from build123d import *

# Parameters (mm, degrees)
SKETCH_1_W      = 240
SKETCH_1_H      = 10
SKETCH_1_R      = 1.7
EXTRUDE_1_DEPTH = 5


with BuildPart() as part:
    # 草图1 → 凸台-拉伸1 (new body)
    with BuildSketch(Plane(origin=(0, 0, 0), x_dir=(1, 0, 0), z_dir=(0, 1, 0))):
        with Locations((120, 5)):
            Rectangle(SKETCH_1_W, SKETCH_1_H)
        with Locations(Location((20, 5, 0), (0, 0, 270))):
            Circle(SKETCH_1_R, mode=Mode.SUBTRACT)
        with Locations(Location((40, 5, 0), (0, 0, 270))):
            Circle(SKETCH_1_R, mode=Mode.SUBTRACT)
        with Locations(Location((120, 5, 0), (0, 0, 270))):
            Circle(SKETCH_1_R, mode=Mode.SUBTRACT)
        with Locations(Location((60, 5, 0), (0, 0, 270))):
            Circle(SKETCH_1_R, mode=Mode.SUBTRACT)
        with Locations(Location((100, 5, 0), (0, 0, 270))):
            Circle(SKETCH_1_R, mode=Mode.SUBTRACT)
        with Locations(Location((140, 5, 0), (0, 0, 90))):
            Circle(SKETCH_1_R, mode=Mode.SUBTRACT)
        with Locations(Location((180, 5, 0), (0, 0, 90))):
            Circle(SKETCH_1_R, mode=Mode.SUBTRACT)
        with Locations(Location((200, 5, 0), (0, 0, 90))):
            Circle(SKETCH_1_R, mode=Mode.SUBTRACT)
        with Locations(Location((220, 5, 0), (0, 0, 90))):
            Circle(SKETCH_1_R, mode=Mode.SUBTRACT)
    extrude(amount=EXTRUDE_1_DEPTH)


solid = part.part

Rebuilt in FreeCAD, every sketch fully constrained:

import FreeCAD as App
import Part
import Sketcher
Q = App.Units.Quantity

doc = App.newDocument("Part")
body = doc.addObject("PartDesign::Body", "Body")

sketch1 = body.newObject("Sketcher::SketchObject", "Sketch")
sketch1.AttachmentSupport = (doc.getObject("XZ_Plane"), [""])
sketch1.MapMode = "FlatFace"
sketch1.addGeometry(Part.LineSegment(App.Vector(0, -10, 0), App.Vector(0, 0, 0)), False)
sketch1.addGeometry(Part.LineSegment(App.Vector(0, 0, 0), App.Vector(240, 0, 0)), False)
sketch1.addGeometry(Part.LineSegment(App.Vector(240, 0, 0), App.Vector(240, -10, 0)), False)
sketch1.addGeometry(Part.LineSegment(App.Vector(240, -10, 0), App.Vector(0, -10, 0)), False)
sketch1.addGeometry(Part.Circle(App.Vector(20, -5, 0), App.Vector(0, 0, 1), 1.7), False)
sketch1.addGeometry(Part.Circle(App.Vector(40, -5, 0), App.Vector(0, 0, 1), 1.7), False)
sketch1.addGeometry(Part.Circle(App.Vector(60, -5, 0), App.Vector(0, 0, 1), 1.7), False)
sketch1.addGeometry(Part.Circle(App.Vector(100, -5, 0), App.Vector(0, 0, 1), 1.7), False)
sketch1.addGeometry(Part.Circle(App.Vector(120, -5, 0), App.Vector(0, 0, 1), 1.7), False)
sketch1.addGeometry(Part.Circle(App.Vector(140, -5, 0), App.Vector(0, 0, 1), 1.7), False)
sketch1.addGeometry(Part.Circle(App.Vector(180, -5, 0), App.Vector(0, 0, 1), 1.7), False)
sketch1.addGeometry(Part.Circle(App.Vector(200, -5, 0), App.Vector(0, 0, 1), 1.7), False)
sketch1.addGeometry(Part.Circle(App.Vector(220, -5, 0), App.Vector(0, 0, 1), 1.7), False)
sketch1.addConstraint(Sketcher.Constraint("Coincident", 0, 2, 1, 1))
sketch1.addConstraint(Sketcher.Constraint("Coincident", 1, 2, 2, 1))
sketch1.addConstraint(Sketcher.Constraint("Coincident", 2, 2, 3, 1))
sketch1.addConstraint(Sketcher.Constraint("Coincident", 3, 2, 0, 1))
sketch1.addConstraint(Sketcher.Constraint("Vertical", 0))
sketch1.addConstraint(Sketcher.Constraint("Horizontal", 1))
sketch1.addConstraint(Sketcher.Constraint("Vertical", 2))
sketch1.addConstraint(Sketcher.Constraint("Horizontal", 3))
sketch1.addConstraint(Sketcher.Constraint("Coincident", 0, 2, -1, 1))
sketch1.addConstraint(Sketcher.Constraint("Equal", 4, 5))
sketch1.addConstraint(Sketcher.Constraint("Equal", 5, 6))
sketch1.addConstraint(Sketcher.Constraint("Equal", 6, 7))
sketch1.addConstraint(Sketcher.Constraint("Equal", 7, 8))
sketch1.addConstraint(Sketcher.Constraint("Equal", 8, 9))
sketch1.addConstraint(Sketcher.Constraint("Equal", 9, 10))
sketch1.addConstraint(Sketcher.Constraint("Equal", 10, 11))
sketch1.addConstraint(Sketcher.Constraint("Equal", 11, 12))
sketch1.addConstraint(Sketcher.Constraint("Horizontal", 4, 3, 5, 3))
sketch1.addConstraint(Sketcher.Constraint("Horizontal", 5, 3, 6, 3))
sketch1.addConstraint(Sketcher.Constraint("Horizontal", 6, 3, 7, 3))
sketch1.addConstraint(Sketcher.Constraint("Horizontal", 7, 3, 8, 3))
sketch1.addConstraint(Sketcher.Constraint("Horizontal", 8, 3, 9, 3))
sketch1.addConstraint(Sketcher.Constraint("Horizontal", 9, 3, 10, 3))
sketch1.addConstraint(Sketcher.Constraint("Horizontal", 10, 3, 11, 3))
sketch1.addConstraint(Sketcher.Constraint("Horizontal", 11, 3, 12, 3))
sketch1.addConstraint(Sketcher.Constraint("Diameter", 4, Q("3.4 mm")))
sketch1.addConstraint(Sketcher.Constraint("DistanceX", 1, 1, 1, 2, Q("240 mm")))
sketch1.addConstraint(Sketcher.Constraint("DistanceY", 0, 1, 0, 2, Q("10 mm")))
sketch1.addConstraint(Sketcher.Constraint("DistanceX", -1, 1, 4, 3, Q("20 mm")))
sketch1.addConstraint(Sketcher.Constraint("DistanceY", 4, 3, -1, 1, Q("5 mm")))
sketch1.addConstraint(Sketcher.Constraint("DistanceX", -1, 1, 5, 3, Q("40 mm")))
sketch1.addConstraint(Sketcher.Constraint("DistanceX", -1, 1, 6, 3, Q("60 mm")))
sketch1.addConstraint(Sketcher.Constraint("DistanceX", -1, 1, 7, 3, Q("100 mm")))
sketch1.addConstraint(Sketcher.Constraint("DistanceX", -1, 1, 8, 3, Q("120 mm")))
sketch1.addConstraint(Sketcher.Constraint("DistanceX", -1, 1, 9, 3, Q("140 mm")))
sketch1.addConstraint(Sketcher.Constraint("DistanceX", -1, 1, 10, 3, Q("180 mm")))
sketch1.addConstraint(Sketcher.Constraint("DistanceX", -1, 1, 11, 3, Q("200 mm")))
sketch1.addConstraint(Sketcher.Constraint("DistanceX", -1, 1, 12, 3, Q("220 mm")))
pad1 = body.newObject("PartDesign::Pad", "Pad")
pad1.Profile = sketch1
pad1.Length = 5
pad1.Reversed = True

doc.recompute()
